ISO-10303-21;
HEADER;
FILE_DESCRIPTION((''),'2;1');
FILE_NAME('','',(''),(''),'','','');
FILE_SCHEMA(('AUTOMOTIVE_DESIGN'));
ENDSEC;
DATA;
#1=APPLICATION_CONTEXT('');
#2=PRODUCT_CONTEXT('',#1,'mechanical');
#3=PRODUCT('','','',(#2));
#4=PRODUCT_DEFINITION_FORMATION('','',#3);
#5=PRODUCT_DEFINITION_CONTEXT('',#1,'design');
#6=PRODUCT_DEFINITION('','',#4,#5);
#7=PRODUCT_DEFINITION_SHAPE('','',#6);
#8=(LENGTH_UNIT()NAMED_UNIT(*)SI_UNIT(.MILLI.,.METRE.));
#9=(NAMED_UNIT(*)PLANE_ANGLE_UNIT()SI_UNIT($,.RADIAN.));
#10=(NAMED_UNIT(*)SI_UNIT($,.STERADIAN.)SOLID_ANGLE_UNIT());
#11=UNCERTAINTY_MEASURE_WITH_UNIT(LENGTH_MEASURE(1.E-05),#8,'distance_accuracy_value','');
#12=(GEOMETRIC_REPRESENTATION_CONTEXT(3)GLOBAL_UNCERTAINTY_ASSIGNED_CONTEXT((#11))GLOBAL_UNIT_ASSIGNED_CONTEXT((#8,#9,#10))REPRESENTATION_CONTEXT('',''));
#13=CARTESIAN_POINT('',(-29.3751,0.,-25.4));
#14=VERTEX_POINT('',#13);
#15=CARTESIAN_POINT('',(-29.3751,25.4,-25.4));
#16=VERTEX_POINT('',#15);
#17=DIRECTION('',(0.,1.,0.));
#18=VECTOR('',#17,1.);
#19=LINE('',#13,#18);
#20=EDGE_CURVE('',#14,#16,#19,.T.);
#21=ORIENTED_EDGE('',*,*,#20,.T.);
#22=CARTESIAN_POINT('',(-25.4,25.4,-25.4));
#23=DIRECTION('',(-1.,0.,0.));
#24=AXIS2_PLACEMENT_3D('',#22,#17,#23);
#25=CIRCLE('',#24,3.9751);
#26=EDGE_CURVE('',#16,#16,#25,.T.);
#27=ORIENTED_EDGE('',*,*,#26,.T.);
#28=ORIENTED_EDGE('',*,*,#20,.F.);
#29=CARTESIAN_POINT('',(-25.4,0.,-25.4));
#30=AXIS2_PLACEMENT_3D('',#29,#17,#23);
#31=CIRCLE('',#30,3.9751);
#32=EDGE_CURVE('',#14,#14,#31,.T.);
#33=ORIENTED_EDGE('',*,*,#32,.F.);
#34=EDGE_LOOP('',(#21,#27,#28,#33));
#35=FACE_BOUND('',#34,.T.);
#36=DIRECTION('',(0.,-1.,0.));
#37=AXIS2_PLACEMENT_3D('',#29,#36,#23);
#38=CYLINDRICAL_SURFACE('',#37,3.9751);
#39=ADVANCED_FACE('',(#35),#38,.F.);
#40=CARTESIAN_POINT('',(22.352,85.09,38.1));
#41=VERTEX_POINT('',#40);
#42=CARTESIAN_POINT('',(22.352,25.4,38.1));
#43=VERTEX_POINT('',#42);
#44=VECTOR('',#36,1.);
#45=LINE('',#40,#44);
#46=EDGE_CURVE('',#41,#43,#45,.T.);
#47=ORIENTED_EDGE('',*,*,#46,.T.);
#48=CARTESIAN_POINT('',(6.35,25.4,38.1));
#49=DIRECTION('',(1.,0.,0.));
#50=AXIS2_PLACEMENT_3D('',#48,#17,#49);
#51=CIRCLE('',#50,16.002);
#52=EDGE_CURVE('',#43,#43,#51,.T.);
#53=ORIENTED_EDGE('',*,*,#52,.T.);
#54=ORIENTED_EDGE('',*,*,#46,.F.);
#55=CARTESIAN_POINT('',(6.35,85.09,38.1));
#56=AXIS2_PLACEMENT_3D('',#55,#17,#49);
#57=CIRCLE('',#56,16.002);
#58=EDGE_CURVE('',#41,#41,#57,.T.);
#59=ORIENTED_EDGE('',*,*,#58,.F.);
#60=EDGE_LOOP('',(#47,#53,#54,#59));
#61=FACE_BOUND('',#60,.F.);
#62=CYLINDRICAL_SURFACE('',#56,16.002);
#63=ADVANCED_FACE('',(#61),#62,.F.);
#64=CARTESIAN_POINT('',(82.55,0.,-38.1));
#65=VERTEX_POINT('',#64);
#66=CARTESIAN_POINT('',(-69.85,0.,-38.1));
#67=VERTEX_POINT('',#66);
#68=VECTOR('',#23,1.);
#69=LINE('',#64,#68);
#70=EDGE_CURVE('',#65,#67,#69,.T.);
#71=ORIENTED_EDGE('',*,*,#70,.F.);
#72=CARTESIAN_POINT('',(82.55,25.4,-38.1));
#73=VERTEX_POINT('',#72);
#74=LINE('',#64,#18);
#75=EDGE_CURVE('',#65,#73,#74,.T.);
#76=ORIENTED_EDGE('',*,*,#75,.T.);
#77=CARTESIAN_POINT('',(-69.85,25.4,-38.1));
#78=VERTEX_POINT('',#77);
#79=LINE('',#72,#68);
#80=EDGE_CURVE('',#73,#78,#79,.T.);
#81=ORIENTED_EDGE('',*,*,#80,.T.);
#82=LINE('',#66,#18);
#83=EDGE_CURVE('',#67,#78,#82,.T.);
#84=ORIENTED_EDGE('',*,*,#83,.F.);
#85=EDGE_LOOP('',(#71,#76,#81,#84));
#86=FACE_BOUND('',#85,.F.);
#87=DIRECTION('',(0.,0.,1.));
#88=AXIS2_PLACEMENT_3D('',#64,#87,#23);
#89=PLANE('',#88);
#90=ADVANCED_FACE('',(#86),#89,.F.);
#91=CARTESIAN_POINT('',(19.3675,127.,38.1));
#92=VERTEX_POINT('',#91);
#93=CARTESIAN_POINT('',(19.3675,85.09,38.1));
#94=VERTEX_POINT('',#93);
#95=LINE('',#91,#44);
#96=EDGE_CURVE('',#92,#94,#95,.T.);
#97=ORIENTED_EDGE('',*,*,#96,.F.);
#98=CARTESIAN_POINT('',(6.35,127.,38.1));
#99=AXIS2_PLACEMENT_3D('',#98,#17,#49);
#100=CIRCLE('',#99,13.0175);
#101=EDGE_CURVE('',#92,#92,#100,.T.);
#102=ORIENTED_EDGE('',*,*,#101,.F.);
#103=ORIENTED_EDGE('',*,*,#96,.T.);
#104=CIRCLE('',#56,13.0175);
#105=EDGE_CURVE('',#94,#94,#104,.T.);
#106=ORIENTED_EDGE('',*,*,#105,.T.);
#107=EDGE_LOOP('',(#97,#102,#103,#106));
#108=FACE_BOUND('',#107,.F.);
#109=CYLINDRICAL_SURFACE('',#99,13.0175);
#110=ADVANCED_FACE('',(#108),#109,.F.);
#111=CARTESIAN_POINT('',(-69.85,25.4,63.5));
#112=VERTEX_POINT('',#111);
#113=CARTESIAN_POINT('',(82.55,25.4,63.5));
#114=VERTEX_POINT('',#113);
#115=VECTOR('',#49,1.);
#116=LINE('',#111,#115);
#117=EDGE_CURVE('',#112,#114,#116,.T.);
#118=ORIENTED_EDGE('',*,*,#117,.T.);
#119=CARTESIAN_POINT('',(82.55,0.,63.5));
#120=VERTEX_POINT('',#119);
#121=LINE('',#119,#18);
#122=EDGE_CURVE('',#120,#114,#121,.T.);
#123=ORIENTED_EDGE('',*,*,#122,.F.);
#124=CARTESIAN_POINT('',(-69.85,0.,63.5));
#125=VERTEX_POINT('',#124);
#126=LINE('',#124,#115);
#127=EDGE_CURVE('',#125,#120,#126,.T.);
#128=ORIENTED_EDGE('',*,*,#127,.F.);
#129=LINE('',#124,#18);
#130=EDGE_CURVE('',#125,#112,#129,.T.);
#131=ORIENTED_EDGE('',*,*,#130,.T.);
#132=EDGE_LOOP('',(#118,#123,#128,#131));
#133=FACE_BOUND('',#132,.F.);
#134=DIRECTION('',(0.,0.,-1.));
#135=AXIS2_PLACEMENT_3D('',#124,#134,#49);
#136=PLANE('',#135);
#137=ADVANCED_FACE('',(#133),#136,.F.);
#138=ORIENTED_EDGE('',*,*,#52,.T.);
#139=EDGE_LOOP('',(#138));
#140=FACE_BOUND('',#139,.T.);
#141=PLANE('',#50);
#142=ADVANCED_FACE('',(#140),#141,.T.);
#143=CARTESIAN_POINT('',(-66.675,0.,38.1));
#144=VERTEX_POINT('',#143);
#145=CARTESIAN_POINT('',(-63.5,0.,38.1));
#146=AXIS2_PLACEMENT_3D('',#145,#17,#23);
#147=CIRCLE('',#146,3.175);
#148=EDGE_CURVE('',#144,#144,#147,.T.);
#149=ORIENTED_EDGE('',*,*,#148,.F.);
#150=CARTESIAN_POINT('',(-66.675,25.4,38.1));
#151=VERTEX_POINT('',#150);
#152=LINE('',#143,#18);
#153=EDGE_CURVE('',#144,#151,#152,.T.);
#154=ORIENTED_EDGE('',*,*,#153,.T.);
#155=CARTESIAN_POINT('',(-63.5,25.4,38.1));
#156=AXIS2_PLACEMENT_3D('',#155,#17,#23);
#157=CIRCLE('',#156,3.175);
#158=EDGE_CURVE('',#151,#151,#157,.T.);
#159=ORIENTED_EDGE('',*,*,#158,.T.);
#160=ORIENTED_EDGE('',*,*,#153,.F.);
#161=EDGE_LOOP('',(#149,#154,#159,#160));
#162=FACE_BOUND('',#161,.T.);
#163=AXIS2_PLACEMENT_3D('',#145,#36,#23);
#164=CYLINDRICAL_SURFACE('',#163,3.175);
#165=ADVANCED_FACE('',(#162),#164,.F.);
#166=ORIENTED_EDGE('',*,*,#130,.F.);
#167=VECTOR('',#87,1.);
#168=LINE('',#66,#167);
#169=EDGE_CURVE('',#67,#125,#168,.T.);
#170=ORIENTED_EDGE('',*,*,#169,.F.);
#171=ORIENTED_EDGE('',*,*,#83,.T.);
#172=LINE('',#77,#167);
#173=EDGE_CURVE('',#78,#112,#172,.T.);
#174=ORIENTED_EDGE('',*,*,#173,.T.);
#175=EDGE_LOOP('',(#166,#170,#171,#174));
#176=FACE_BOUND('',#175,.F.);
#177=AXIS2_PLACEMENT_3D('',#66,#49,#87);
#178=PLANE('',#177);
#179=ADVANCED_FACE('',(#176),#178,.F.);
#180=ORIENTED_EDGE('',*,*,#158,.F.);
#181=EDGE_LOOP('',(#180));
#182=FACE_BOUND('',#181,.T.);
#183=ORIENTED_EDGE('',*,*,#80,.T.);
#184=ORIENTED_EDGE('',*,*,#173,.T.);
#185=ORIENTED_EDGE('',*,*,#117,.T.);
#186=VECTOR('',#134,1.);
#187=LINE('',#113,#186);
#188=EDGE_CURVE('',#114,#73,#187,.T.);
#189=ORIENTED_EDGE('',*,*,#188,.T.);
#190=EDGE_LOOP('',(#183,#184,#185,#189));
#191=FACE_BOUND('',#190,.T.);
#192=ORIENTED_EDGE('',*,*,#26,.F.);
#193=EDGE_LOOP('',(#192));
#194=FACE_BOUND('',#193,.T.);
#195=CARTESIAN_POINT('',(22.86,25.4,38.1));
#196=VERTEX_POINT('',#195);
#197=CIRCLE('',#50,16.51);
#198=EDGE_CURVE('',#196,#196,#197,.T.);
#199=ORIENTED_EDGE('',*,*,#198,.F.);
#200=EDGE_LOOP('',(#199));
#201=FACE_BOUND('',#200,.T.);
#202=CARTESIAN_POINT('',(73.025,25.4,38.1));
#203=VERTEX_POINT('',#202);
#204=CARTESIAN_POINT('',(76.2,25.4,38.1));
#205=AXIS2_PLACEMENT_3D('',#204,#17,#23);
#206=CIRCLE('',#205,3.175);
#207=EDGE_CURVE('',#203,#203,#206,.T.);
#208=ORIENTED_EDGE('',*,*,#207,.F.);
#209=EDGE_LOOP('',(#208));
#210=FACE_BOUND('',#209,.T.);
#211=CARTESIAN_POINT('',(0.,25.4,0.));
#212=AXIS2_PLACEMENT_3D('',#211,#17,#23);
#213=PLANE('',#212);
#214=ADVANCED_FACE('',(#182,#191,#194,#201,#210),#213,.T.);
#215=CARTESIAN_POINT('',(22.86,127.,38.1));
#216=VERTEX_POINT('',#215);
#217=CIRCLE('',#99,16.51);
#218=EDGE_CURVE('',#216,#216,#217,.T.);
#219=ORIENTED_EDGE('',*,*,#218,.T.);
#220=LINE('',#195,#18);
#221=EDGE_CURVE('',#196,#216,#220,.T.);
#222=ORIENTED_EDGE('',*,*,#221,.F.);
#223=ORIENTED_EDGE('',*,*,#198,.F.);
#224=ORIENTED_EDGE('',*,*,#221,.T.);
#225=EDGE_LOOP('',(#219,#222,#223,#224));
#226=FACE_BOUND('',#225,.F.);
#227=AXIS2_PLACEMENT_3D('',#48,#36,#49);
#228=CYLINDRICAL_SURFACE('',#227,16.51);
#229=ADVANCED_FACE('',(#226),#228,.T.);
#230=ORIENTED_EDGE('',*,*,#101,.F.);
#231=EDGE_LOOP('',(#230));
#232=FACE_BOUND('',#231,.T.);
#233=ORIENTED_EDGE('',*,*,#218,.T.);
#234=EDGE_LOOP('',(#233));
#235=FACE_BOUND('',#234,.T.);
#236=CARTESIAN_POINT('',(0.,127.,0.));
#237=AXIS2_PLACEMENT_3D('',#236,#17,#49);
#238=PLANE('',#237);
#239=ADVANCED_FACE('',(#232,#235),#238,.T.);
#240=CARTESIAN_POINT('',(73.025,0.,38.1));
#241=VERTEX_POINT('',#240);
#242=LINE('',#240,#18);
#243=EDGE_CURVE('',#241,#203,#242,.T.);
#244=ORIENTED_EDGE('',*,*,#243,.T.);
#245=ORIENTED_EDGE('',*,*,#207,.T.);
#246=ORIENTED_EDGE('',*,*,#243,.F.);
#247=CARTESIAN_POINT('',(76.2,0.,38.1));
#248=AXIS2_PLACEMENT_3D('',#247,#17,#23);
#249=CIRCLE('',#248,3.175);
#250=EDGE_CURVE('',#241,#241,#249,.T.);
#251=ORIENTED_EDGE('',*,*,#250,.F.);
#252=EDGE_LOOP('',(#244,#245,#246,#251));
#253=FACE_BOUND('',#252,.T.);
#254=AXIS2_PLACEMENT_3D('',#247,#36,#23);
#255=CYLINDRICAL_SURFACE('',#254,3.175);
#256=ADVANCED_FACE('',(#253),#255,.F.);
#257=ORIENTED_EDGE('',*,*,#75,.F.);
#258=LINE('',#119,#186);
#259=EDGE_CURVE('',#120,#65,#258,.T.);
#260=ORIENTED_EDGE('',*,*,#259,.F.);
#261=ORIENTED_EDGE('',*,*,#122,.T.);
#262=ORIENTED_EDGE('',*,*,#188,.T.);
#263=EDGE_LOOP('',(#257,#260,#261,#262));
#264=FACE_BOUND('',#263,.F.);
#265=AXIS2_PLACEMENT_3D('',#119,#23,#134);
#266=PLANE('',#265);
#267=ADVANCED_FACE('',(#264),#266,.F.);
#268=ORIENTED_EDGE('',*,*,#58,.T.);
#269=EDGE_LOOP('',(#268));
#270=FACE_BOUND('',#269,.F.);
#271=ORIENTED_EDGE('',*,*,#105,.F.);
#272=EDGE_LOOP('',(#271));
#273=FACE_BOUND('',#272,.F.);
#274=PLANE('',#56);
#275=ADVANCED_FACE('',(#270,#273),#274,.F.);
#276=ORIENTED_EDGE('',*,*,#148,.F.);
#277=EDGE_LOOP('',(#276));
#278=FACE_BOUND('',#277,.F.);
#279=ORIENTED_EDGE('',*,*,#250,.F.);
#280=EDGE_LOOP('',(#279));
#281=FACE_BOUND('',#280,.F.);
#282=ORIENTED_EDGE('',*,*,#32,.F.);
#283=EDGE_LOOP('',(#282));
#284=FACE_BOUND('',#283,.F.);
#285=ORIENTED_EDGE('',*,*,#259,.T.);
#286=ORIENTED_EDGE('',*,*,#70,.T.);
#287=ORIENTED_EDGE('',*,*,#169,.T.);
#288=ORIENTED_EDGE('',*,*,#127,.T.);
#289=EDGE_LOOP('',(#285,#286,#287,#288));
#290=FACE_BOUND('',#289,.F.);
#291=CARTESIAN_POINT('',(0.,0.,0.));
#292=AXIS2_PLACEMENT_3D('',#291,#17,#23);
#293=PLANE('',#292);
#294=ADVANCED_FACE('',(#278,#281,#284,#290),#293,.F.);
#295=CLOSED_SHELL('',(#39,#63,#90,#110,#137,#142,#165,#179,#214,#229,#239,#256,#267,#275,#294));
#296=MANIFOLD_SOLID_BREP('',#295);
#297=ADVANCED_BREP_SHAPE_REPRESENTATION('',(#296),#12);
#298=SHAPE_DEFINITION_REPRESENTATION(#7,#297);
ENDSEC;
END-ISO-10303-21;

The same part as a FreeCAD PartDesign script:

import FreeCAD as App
import Part
import Sketcher
Q = App.Units.Quantity

doc = App.newDocument("Part")
body = doc.addObject("PartDesign::Body", "Body")

# Sketch on XZ plane
sketch1 = body.newObject("Sketcher::SketchObject", "Sketch")
sketch1.AttachmentSupport = (doc.getObject("XZ_Plane"), [""])
sketch1.MapMode = "FlatFace"
sketch1.addGeometry(Part.LineSegment(App.Vector(-69.85, -38.1, 0), App.Vector(-69.85, 63.5, 0)), False)
sketch1.addGeometry(Part.LineSegment(App.Vector(-69.85, 63.5, 0), App.Vector(82.55, 63.5, 0)), False)
sketch1.addGeometry(Part.LineSegment(App.Vector(82.55, 63.5, 0), App.Vector(82.55, -38.1, 0)), False)
sketch1.addGeometry(Part.LineSegment(App.Vector(82.55, -38.1, 0), App.Vector(-69.85, -38.1, 0)), False)
sketch1.addGeometry(Part.Circle(App.Vector(-25.4, -25.4, 0), App.Vector(0, 0, 1), 3.9751), False)
sketch1.addGeometry(Part.Circle(App.Vector(76.2, 38.1, 0), App.Vector(0, 0, 1), 3.175), False)
sketch1.addGeometry(Part.Circle(App.Vector(-63.5, 38.1, 0), App.Vector(0, 0, 1), 3.175), False)
sketch1.addConstraint(Sketcher.Constraint("Coincident", 0, 2, 1, 1))
sketch1.addConstraint(Sketcher.Constraint("Coincident", 1, 2, 2, 1))
sketch1.addConstraint(Sketcher.Constraint("Coincident", 2, 2, 3, 1))
sketch1.addConstraint(Sketcher.Constraint("Coincident", 3, 2, 0, 1))
sketch1.addConstraint(Sketcher.Constraint("Vertical", 0))
sketch1.addConstraint(Sketcher.Constraint("Horizontal", 1))
sketch1.addConstraint(Sketcher.Constraint("Vertical", 2))
sketch1.addConstraint(Sketcher.Constraint("Horizontal", 3))
sketch1.addConstraint(Sketcher.Constraint("Equal", 5, 6))
sketch1.addConstraint(Sketcher.Constraint("Horizontal", 5, 3, 6, 3))
sketch1.addConstraint(Sketcher.Constraint("Diameter", 5, Q("0.25 in")))
sketch1.addConstraint(Sketcher.Constraint("DistanceX", 1, 1, 1, 2, Q("6 in")))
sketch1.addConstraint(Sketcher.Constraint("DistanceY", 0, 1, 0, 2, Q("4 in")))
sketch1.addConstraint(Sketcher.Constraint("Diameter", 4, Q("0.313 in")))
sketch1.addConstraint(Sketcher.Constraint("DistanceX", 4, 3, -1, 1, Q("1 in")))
sketch1.addConstraint(Sketcher.Constraint("DistanceY", 4, 3, -1, 1, Q("1 in")))
sketch1.addConstraint(Sketcher.Constraint("DistanceX", 4, 3, 5, 3, Q("4 in")))
sketch1.addConstraint(Sketcher.Constraint("DistanceY", 6, 3, 0, 2, Q("1 in")))
sketch1.addConstraint(Sketcher.Constraint("DistanceY", -1, 1, 5, 3, Q("1.5 in")))
sketch1.addConstraint(Sketcher.Constraint("DistanceX", 6, 3, 4, 3, Q("1.5 in")))
sketch1.addConstraint(Sketcher.Constraint("DistanceX", 0, 2, 6, 3, Q("0.25 in")))
pad1 = body.newObject("PartDesign::Pad", "Pad")
pad1.Profile = sketch1
pad1.Length = Q("1 in")
pad1.Reversed = True

# Sketch on XZ plane
sketch2 = body.newObject("Sketcher::SketchObject", "Sketch001")
sketch2.AttachmentSupport = (doc.getObject("XZ_Plane"), [""])
sketch2.MapMode = "FlatFace"
sketch2.AttachmentOffset = App.Placement(App.Vector(0, 0, -1 * 25.4), App.Rotation())
sketch2.addGeometry(Part.Circle(App.Vector(6.35, 38.1, 0), App.Vector(0, 0, 1), 16.51), False)
sketch2.addConstraint(Sketcher.Constraint("Diameter", 0, Q("1.3 in")))
sketch2.addConstraint(Sketcher.Constraint("DistanceY", -1, 1, 0, 3, Q("1.5 in")))
sketch2.addConstraint(Sketcher.Constraint("DistanceX", -1, 1, 0, 3, Q("0.25 in")))
pad2 = body.newObject("PartDesign::Pad", "Pad001")
pad2.Profile = sketch2
pad2.Length = Q("4 in")
pad2.Reversed = True

# Sketch on XZ plane
sketch3 = body.newObject("Sketcher::SketchObject", "Sketch002")
sketch3.AttachmentSupport = (doc.getObject("XZ_Plane"), [""])
sketch3.MapMode = "FlatFace"
sketch3.AttachmentOffset = App.Placement(App.Vector(0, 0, -5 * 25.4), App.Rotation())
sketch3.addGeometry(Part.Circle(App.Vector(6.35, 38.1, 0), App.Vector(0, 0, 1), 13.0175), False)
sketch3.addConstraint(Sketcher.Constraint("Diameter", 0, Q("1.025 in")))
sketch3.addConstraint(Sketcher.Constraint("DistanceY", -1, 1, 0, 3, Q("1.5 in")))
sketch3.addConstraint(Sketcher.Constraint("DistanceX", -1, 1, 0, 3, Q("0.25 in")))
pocket1 = body.newObject("PartDesign::Pocket", "Pocket")
pocket1.Profile = sketch3
pocket1.Length = Q("1.65 in")
pocket1.Reversed = True

# Sketch on XZ plane
sketch4 = body.newObject("Sketcher::SketchObject", "Sketch003")
sketch4.AttachmentSupport = (doc.getObject("XZ_Plane"), [""])
sketch4.MapMode = "FlatFace"
sketch4.AttachmentOffset = App.Placement(App.Vector(0, 0, -3.35 * 25.4), App.Rotation())
sketch4.addGeometry(Part.Circle(App.Vector(6.35, 38.1, 0), App.Vector(0, 0, 1), 16.002), False)
sketch4.addConstraint(Sketcher.Constraint("Diameter", 0, Q("1.26 in")))
sketch4.addConstraint(Sketcher.Constraint("DistanceY", -1, 1, 0, 3, Q("1.5 in")))
sketch4.addConstraint(Sketcher.Constraint("DistanceX", -1, 1, 0, 3, Q("0.25 in")))
pocket2 = body.newObject("PartDesign::Pocket", "Pocket001")
pocket2.Profile = sketch4
pocket2.Length = Q("2.35 in")
pocket2.Reversed = True

doc.recompute()
